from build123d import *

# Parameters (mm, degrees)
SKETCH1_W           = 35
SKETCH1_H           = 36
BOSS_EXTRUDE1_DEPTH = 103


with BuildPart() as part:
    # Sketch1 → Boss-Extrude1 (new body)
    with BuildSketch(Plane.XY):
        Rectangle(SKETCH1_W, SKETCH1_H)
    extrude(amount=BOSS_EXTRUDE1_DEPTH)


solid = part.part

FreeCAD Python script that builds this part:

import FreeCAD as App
import Part
import Sketcher
from FreeCAD import Vector

doc = App.newDocument("Part")
params = doc.addObject("Spreadsheet::Sheet", "Params")
for row, (alias, value) in enumerate([
    ("sketch1_width", "35 mm"),
    ("sketch1_height", "36 mm"),
    ("pad1_length", "103 mm"),
], start=1):
    params.set(f"A{row}", alias)
    params.set(f"B{row}", "=" + value)
    params.setAlias(f"B{row}", alias)

body = doc.addObject("PartDesign::Body", "Body")

sketch1 = doc.addObject("Sketcher::SketchObject", "Sketch")
body.addObject(sketch1)
sketch1.AttachmentSupport = (doc.XY_Plane, [""])
sketch1.MapMode = "FlatFace"
sketch1.addGeometry(Part.LineSegment(Vector(-17.5, 18, 0), Vector(-17.5, -18, 0)), False)
sketch1.addGeometry(Part.LineSegment(Vector(-17.5, -18, 0), Vector(17.5, -18, 0)), False)
sketch1.addGeometry(Part.LineSegment(Vector(17.5, -18, 0), Vector(17.5, 18, 0)), False)
sketch1.addGeometry(Part.LineSegment(Vector(17.5, 18, 0), Vector(-17.5, 18, 0)), False)
sketch1.addConstraint(Sketcher.Constraint("Coincident", 0, 2, 1, 1))
sketch1.addConstraint(Sketcher.Constraint("Coincident", 1, 2, 2, 1))
sketch1.addConstraint(Sketcher.Constraint("Coincident", 2, 2, 3, 1))
sketch1.addConstraint(Sketcher.Constraint("Coincident", 3, 2, 0, 1))
sketch1.addConstraint(Sketcher.Constraint("Vertical", 0))
sketch1.addConstraint(Sketcher.Constraint("Horizontal", 1))
sketch1.addConstraint(Sketcher.Constraint("Vertical", 2))
sketch1.addConstraint(Sketcher.Constraint("Horizontal", 3))
sketch1.addConstraint(Sketcher.Constraint("Symmetric", 0, 2, 2, 2, -1, 1))
sketch1.addConstraint(Sketcher.Constraint("DistanceX", 1, 1, 1, 2, 35.0))
sketch1.addConstraint(Sketcher.Constraint("DistanceY", 0, 2, 0, 1, 36.0))
sketch1.setExpression("Constraints[9]", "Params.sketch1_width")
sketch1.setExpression("Constraints[10]", "Params.sketch1_height")
pad1 = doc.addObject("PartDesign::Pad", "Pad")
body.addObject(pad1)
pad1.Profile = sketch1
pad1.setExpression("Length", "Params.pad1_length")

doc.recompute()
